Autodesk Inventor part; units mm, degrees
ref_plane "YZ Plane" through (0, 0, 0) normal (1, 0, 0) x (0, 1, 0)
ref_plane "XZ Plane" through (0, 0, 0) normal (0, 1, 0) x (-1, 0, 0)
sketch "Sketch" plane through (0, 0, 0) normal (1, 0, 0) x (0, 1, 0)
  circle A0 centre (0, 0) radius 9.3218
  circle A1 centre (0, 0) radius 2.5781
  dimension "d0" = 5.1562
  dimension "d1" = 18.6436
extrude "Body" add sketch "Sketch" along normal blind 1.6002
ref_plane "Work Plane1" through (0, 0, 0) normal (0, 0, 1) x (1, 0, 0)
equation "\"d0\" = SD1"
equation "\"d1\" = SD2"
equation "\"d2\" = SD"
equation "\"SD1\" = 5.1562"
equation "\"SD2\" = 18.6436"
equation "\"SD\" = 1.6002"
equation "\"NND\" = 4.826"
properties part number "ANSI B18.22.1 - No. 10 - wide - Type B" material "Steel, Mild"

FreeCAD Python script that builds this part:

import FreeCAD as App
import Part
import Sketcher

V = App.Vector
Q = App.Units.Quantity

doc = App.newDocument("Part")
body = doc.addObject("PartDesign::Body", "Body")

# Sketch on YZ plane
sketch1 = body.newObject("Sketcher::SketchObject", "Sketch")
sketch1.AttachmentSupport = (doc.getObject("YZ_Plane"), [""])
sketch1.MapMode = "FlatFace"
sketch1.addGeometry(Part.Circle(V(0, 0, 0), V(0, 0, 1), 9.3218), False)
sketch1.addGeometry(Part.Circle(V(0, 0, 0), V(0, 0, 1), 2.5781), False)
sketch1.addConstraint(Sketcher.Constraint("Coincident", 0, 3, -1, 1))
sketch1.addConstraint(Sketcher.Constraint("Coincident", 1, 3, -1, 1))
sketch1.addConstraint(Sketcher.Constraint("Diameter", 0, Q("0.734 in")))
sketch1.addConstraint(Sketcher.Constraint("Diameter", 1, Q("0.203 in")))
pad1 = body.newObject("PartDesign::Pad", "Pad")
pad1.Profile = sketch1
pad1.Length = Q("0.063 in")

doc.recompute()
